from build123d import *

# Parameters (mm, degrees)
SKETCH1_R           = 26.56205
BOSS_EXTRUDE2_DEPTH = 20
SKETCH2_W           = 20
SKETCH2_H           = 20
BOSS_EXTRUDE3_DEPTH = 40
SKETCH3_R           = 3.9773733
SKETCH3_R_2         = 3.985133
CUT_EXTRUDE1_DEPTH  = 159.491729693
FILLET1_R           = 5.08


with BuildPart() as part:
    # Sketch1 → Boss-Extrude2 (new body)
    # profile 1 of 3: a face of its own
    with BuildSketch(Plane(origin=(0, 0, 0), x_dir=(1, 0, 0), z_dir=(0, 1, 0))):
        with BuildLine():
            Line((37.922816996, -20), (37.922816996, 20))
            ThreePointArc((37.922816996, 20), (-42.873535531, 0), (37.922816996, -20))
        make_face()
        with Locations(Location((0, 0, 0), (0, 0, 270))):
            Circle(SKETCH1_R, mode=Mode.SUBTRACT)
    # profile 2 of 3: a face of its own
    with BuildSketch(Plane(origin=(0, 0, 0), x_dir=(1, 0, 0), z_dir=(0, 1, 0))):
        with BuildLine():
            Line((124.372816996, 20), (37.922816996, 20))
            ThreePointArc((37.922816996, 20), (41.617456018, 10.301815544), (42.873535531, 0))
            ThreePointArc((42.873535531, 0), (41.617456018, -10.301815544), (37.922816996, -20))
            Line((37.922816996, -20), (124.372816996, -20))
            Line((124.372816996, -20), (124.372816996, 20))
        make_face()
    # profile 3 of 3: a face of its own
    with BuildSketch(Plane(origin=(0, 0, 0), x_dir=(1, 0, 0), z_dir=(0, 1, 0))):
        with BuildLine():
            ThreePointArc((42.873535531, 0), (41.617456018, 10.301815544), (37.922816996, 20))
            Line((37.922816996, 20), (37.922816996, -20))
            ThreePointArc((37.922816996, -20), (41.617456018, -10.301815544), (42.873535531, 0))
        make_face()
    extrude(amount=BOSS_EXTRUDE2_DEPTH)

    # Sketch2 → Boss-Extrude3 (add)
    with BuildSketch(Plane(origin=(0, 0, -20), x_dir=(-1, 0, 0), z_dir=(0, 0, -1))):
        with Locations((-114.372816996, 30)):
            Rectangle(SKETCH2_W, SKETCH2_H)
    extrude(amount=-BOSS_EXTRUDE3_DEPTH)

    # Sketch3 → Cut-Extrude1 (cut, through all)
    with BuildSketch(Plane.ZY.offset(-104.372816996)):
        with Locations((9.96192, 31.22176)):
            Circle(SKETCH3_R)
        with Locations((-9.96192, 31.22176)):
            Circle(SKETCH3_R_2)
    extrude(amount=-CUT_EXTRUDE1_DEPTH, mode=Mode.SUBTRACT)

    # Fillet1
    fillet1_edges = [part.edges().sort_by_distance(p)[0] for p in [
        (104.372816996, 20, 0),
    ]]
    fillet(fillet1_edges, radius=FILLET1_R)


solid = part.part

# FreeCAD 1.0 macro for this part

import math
import FreeCAD as App
import Part
import Sketcher
Q = App.Units.Quantity


def edges_at(feature, points):
    """Names of the edges that pass closest to the given points."""
    edges = feature.Shape.Edges
    near = lambda p: min(range(len(edges)), key=lambda i: edges[i].distToShape(Part.Vertex(*p))[0])
    return sorted({f"Edge{near(p) + 1}" for p in points})

doc = App.newDocument("Part")
params = doc.addObject("Spreadsheet::Sheet", "Params")
for row, (alias, value) in enumerate([
    ("sketch1_height", "40 mm"),
    ("sketch1_width", "86.45 mm"),
    ("pad1_length", "20 mm"),
    ("sketch2_width", "20 mm"),
    ("pad2_length", "40 mm"),
    ("fillet_radius", "5.08 mm"),
], start=1):
    params.set(f"A{row}", alias)
    params.set(f"B{row}", "=" + value)
    params.setAlias(f"B{row}", alias)

body = doc.addObject("PartDesign::Body", "Body")

sketch1 = body.newObject("Sketcher::SketchObject", "Sketch")
sketch1.AttachmentSupport = (doc.getObject("XZ_Plane"), [""])
sketch1.MapMode = "FlatFace"
sketch1.addGeometry([
    Part.ArcOfCircle(Part.Circle(App.Vector(0, 0, 0), App.Vector(0, 0, 1), 42.873536), math.radians(27.806581), math.radians(332.193419)),
    Part.LineSegment(App.Vector(37.922817, 20, 0), App.Vector(124.372817, 20, 0)),
    Part.LineSegment(App.Vector(124.372817, 20, 0), App.Vector(124.372817, -20, 0)),
    Part.LineSegment(App.Vector(124.372817, -20, 0), App.Vector(37.922817, -20, 0)),
    Part.Circle(App.Vector(0, 0, 0), App.Vector(0, 0, 1), 26.56205),
], False)
sketch1.addConstraint([
    Sketcher.Constraint("Coincident", 0, 1, 1, 1),
    Sketcher.Constraint("Coincident", 1, 2, 2, 1),
    Sketcher.Constraint("Coincident", 2, 2, 3, 1),
    Sketcher.Constraint("Coincident", 3, 2, 0, 2),
    Sketcher.Constraint("Horizontal", 1),
    Sketcher.Constraint("Vertical", 2),
    Sketcher.Constraint("Horizontal", 3),
    Sketcher.Constraint("Coincident", 0, 3, -1, 1),
    Sketcher.Constraint("Coincident", 4, 3, -1, 1),
    Sketcher.Constraint("Vertical", 0, 1, 3, 2),
    Sketcher.Constraint("DistanceY", 2, 2, 2, 1, Q("40 mm")),
    Sketcher.Constraint("Diameter", 4, Q("53.1241 mm")),
    Sketcher.Constraint("DistanceX", 1, 1, 1, 2, Q("86.45 mm")),
    Sketcher.Constraint("Radius", 0, Q("42.873536 mm")),
])
sketch1.setExpression("Constraints[10]", "Params.sketch1_height")
sketch1.setExpression("Constraints[12]", "Params.sketch1_width")
pad1 = body.newObject("PartDesign::Pad", "Pad")
pad1.Profile = sketch1
pad1.setExpression("Length", "Params.pad1_length")
pad1.Reversed = True

sketch2 = body.newObject("Sketcher::SketchObject", "Sketch001")
sketch2.AttachmentSupport = (doc.getObject("XY_Plane"), [""])
sketch2.MapMode = "FlatFace"
sketch2.AttachmentOffset = App.Placement(App.Vector(0, 0, -20), App.Rotation())
sketch2.addGeometry([
    Part.LineSegment(App.Vector(124.372817, 40, 0), App.Vector(124.372817, 20, 0)),
    Part.LineSegment(App.Vector(124.372817, 20, 0), App.Vector(104.372817, 20, 0)),
    Part.LineSegment(App.Vector(104.372817, 20, 0), App.Vector(104.372817, 40, 0)),
    Part.LineSegment(App.Vector(104.372817, 40, 0), App.Vector(124.372817, 40, 0)),
], False)
sketch2.addConstraint([
    Sketcher.Constraint("Coincident", 0, 2, 1, 1),
    Sketcher.Constraint("Coincident", 1, 2, 2, 1),
    Sketcher.Constraint("Coincident", 2, 2, 3, 1),
    Sketcher.Constraint("Coincident", 3, 2, 0, 1),
    Sketcher.Constraint("Vertical", 0),
    Sketcher.Constraint("Horizontal", 1),
    Sketcher.Constraint("Vertical", 2),
    Sketcher.Constraint("Horizontal", 3),
    Sketcher.Constraint("Equal", 3, 0),
    Sketcher.Constraint("DistanceX", 1, 2, 1, 1, Q("20 mm")),
    Sketcher.Constraint("DistanceY", -1, 1, 0, 2, Q("20 mm")),
    Sketcher.Constraint("DistanceX", -1, 1, 0, 2, Q("124.372817 mm")),
])
sketch2.setExpression("Constraints[9]", "Params.sketch2_width")
pad2 = body.newObject("PartDesign::Pad", "Pad001")
pad2.Profile = sketch2
pad2.setExpression("Length", "Params.pad2_length")

sketch3 = body.newObject("Sketcher::SketchObject", "Sketch002")
sketch3.AttachmentSupport = (doc.getObject("YZ_Plane"), [""])
sketch3.MapMode = "FlatFace"
sketch3.AttachmentOffset = App.Placement(App.Vector(0, 0, 104.372817), App.Rotation())
sketch3.addGeometry([
    Part.Circle(App.Vector(31.22176, 9.96192, 0), App.Vector(0, 0, 1), 3.977373),
    Part.Circle(App.Vector(31.22176, -9.96192, 0), App.Vector(0, 0, 1), 3.985133),
], False)
sketch3.addConstraint([
    Sketcher.Constraint("Symmetric", 0, 3, 1, 3, -1),
    Sketcher.Constraint("Diameter", 0, Q("7.954747 mm")),
    Sketcher.Constraint("Diameter", 1, Q("7.970266 mm")),
    Sketcher.Constraint("DistanceX", -1, 1, 0, 3, Q("31.22176 mm")),
    Sketcher.Constraint("DistanceY", -1, 1, 0, 3, Q("9.96192 mm")),
])
pocket1 = body.newObject("PartDesign::Pocket", "Pocket")
pocket1.Profile = sketch3
pocket1.Type = "ThroughAll"
pocket1.Reversed = True
doc.recompute()

fillet = body.newObject("PartDesign::Fillet", "Fillet")
fillet.Base = (pocket1, edges_at(pocket1, [(104.373, 20, 0)]))
fillet.setExpression("Radius", "Params.fillet_radius")

doc.recompute()
